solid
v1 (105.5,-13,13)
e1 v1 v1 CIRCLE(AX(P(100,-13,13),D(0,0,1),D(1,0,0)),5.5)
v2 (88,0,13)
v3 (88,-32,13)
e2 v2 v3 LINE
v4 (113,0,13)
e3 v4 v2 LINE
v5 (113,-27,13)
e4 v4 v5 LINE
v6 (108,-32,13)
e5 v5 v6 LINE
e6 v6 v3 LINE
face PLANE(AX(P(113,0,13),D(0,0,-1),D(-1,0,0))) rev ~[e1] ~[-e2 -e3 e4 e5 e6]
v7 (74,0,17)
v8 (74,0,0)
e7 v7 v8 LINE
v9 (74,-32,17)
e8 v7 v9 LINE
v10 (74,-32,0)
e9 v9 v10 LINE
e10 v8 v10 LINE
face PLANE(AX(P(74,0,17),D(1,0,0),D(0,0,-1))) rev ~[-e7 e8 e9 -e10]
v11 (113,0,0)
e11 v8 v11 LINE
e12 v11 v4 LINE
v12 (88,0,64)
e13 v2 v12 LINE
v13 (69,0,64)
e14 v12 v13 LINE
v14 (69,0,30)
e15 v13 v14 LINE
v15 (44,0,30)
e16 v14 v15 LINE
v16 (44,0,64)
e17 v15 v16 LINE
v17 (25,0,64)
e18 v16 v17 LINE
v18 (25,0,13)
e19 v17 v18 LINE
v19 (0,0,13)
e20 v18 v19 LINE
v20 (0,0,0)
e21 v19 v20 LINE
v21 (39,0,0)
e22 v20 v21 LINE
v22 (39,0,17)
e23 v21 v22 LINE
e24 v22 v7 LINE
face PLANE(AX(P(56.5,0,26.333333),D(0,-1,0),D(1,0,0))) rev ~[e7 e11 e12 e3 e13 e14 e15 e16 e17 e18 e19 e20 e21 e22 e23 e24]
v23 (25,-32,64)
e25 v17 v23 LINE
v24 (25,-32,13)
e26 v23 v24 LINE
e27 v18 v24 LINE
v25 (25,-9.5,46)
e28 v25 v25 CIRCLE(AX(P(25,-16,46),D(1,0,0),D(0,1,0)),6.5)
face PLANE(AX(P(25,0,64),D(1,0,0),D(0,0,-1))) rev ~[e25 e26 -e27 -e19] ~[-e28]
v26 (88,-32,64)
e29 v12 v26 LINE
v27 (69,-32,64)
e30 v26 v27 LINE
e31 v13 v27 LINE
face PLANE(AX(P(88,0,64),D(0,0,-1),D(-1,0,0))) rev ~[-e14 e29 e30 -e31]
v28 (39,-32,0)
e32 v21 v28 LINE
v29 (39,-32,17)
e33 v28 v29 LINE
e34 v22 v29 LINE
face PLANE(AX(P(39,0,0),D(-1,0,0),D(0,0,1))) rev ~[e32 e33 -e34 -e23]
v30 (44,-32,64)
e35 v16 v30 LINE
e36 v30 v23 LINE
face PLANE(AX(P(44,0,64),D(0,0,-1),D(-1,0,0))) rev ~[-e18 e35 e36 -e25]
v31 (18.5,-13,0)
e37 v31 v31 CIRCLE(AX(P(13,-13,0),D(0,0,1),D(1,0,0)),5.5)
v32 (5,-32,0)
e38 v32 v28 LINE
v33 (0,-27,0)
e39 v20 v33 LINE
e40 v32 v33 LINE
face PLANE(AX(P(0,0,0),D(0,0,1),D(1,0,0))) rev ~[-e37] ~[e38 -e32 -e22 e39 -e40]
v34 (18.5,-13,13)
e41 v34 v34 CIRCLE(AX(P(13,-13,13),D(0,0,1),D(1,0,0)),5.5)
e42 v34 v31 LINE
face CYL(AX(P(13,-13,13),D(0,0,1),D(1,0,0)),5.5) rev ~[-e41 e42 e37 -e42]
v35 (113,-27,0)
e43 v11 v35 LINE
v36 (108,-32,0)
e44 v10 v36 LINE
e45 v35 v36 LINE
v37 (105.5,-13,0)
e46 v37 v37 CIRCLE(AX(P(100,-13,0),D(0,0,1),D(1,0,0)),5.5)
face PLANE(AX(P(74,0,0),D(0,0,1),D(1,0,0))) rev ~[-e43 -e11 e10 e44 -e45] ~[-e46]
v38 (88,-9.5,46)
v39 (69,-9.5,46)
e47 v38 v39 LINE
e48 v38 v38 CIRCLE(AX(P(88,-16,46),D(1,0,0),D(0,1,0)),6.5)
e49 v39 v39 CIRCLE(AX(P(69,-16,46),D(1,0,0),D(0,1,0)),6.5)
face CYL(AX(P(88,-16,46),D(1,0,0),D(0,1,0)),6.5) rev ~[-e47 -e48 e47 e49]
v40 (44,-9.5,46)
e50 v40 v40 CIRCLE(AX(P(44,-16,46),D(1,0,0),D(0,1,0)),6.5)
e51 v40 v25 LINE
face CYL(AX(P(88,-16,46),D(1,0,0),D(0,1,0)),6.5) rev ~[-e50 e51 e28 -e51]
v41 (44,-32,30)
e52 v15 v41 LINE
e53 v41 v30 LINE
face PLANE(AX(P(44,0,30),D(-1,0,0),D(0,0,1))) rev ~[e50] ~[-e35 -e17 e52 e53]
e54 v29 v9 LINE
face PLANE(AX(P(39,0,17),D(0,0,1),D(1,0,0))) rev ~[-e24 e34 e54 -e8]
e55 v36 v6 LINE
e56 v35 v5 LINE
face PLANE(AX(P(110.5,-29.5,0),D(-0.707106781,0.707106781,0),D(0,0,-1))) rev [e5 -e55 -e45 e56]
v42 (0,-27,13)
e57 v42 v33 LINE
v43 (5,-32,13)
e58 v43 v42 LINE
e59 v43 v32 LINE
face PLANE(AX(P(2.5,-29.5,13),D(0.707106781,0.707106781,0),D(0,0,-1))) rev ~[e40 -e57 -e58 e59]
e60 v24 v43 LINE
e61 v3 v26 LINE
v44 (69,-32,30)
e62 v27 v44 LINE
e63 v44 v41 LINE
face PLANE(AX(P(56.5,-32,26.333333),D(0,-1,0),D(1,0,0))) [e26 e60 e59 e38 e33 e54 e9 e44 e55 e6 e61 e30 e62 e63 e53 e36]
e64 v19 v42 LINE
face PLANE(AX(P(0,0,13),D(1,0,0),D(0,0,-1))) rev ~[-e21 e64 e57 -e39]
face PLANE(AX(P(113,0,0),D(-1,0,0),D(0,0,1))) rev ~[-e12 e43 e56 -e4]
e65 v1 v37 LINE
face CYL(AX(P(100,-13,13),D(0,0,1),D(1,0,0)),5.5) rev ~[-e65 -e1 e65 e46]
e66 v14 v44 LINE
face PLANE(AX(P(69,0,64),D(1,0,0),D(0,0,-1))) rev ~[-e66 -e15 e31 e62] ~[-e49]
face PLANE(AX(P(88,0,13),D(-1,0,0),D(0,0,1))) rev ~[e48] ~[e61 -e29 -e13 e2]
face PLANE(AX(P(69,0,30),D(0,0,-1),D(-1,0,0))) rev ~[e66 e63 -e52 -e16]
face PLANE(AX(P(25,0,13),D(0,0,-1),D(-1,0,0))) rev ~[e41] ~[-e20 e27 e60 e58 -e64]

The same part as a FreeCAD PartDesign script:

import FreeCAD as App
import Part
import Sketcher
from FreeCAD import Vector
Q = App.Units.Quantity


def edges_at(feature, points):
    """Names of the edges that pass closest to the given points."""
    edges = feature.Shape.Edges
    near = lambda p: min(range(len(edges)), key=lambda i: edges[i].distToShape(Part.Vertex(*p))[0])
    return sorted({f"Edge{near(p) + 1}" for p in points})


def add_polygon(sketch, points):
    """Adds a closed chain of lines whose ends are joined by coincident constraints."""
    first, n = sketch.GeometryCount, len(points)
    for a, b in zip(points, points[1:] + points[:1]):
        sketch.addGeometry(Part.LineSegment(App.Vector(*a, 0), App.Vector(*b, 0)), False)
    for i in range(n):
        sketch.addConstraint(Sketcher.Constraint("Coincident", first + i, 2, first + (i + 1) % n, 1))

doc = App.newDocument("Part")
body = doc.addObject("PartDesign::Body", "Body")

# Sketch on XZ plane
sketch1 = body.newObject("Sketcher::SketchObject", "Sketch")
sketch1.AttachmentSupport = (doc.getObject("XZ_Plane"), [""])
sketch1.MapMode = "FlatFace"
add_polygon(sketch1, [(0, 13), (0, 0), (39, 0), (39, 17), (74, 17), (74, 0), (113, 0), (113, 13), (88, 13), (88, 64), (69, 64), (69, 30), (44, 30), (44, 64), (25, 64), (25, 13)])  # lines 0-15
sketch1.addConstraint(Sketcher.Constraint("Vertical", 0))
sketch1.addConstraint(Sketcher.Constraint("Horizontal", 1))
sketch1.addConstraint(Sketcher.Constraint("Vertical", 2))
sketch1.addConstraint(Sketcher.Constraint("Horizontal", 3))
sketch1.addConstraint(Sketcher.Constraint("Vertical", 4))
sketch1.addConstraint(Sketcher.Constraint("Horizontal", 5))
sketch1.addConstraint(Sketcher.Constraint("Vertical", 6))
sketch1.addConstraint(Sketcher.Constraint("Horizontal", 7))
sketch1.addConstraint(Sketcher.Constraint("Vertical", 8))
sketch1.addConstraint(Sketcher.Constraint("Horizontal", 9))
sketch1.addConstraint(Sketcher.Constraint("Vertical", 10))
sketch1.addConstraint(Sketcher.Constraint("Horizontal", 11))
sketch1.addConstraint(Sketcher.Constraint("Vertical", 12))
sketch1.addConstraint(Sketcher.Constraint("Horizontal", 13))
sketch1.addConstraint(Sketcher.Constraint("Vertical", 14))
sketch1.addConstraint(Sketcher.Constraint("Horizontal", 15))
sketch1.addConstraint(Sketcher.Constraint("Coincident", 0, 2, -1, 1))
sketch1.addConstraint(Sketcher.Constraint("PointOnObject", 4, 2, -1))
sketch1.addConstraint(Sketcher.Constraint("Horizontal", 9, 2, 12, 2))
sketch1.addConstraint(Sketcher.Constraint("Horizontal", 7, 2, 14, 2))
sketch1.addConstraint(Sketcher.Constraint("Equal", 1, 5))
sketch1.addConstraint(Sketcher.Constraint("Equal", 7, 11))
sketch1.addConstraint(Sketcher.Constraint("Equal", 9, 13))
sketch1.addConstraint(Sketcher.Constraint("Equal", 11, 15))
sketch1.addConstraint(Sketcher.Constraint("DistanceX", 1, 1, 1, 2, Q("39 mm")))
sketch1.addConstraint(Sketcher.Constraint("DistanceX", 3, 1, 3, 2, Q("35 mm")))
sketch1.addConstraint(Sketcher.Constraint("DistanceX", 7, 2, 7, 1, Q("25 mm")))
sketch1.addConstraint(Sketcher.Constraint("DistanceY", 0, 2, 0, 1, Q("13 mm")))
sketch1.addConstraint(Sketcher.Constraint("DistanceY", 2, 1, 2, 2, Q("17 mm")))
sketch1.addConstraint(Sketcher.Constraint("DistanceY", 8, 1, 8, 2, Q("51 mm")))
sketch1.addConstraint(Sketcher.Constraint("DistanceY", 10, 2, 10, 1, Q("34 mm")))
pad1 = body.newObject("PartDesign::Pad", "Pad")
pad1.Profile = sketch1
pad1.Length = 32
doc.recompute()

chamfer = body.newObject("PartDesign::Chamfer", "Chamfer")
chamfer.Base = (pad1, edges_at(pad1, [(113, -32, 6.5)]))
chamfer.Size = 5
doc.recompute()

chamfer2 = body.newObject("PartDesign::Chamfer", "Chamfer001")
chamfer2.Base = (chamfer, edges_at(chamfer, [(0, -32, 6.5)]))
chamfer2.Size = 5

# Sketch on YZ plane
sketch2 = body.newObject("Sketcher::SketchObject", "Sketch001")
sketch2.AttachmentSupport = (doc.getObject("YZ_Plane"), [""])
sketch2.MapMode = "FlatFace"
sketch2.AttachmentOffset = App.Placement(Vector(0, 0, 88), App.Rotation())
sketch2.addGeometry(Part.Circle(Vector(-16, 46, 0), Vector(0, 0, 1), 6), False)
sketch2.addConstraint(Sketcher.Constraint("Diameter", 0, Q("13 mm")))
sketch2.addConstraint(Sketcher.Constraint("DistanceX", 0, 3, -1, 1, Q("16 mm")))
sketch2.addConstraint(Sketcher.Constraint("DistanceY", -1, 1, 0, 3, Q("46 mm")))
pocket1 = body.newObject("PartDesign::Pocket", "Pocket")
pocket1.Profile = sketch2
pocket1.Type = "ThroughAll"

# Sketch on XY plane
sketch3 = body.newObject("Sketcher::SketchObject", "Sketch002")
sketch3.AttachmentSupport = (doc.getObject("XY_Plane"), [""])
sketch3.MapMode = "FlatFace"
sketch3.AttachmentOffset = App.Placement(Vector(0, 0, 13), App.Rotation())
sketch3.addGeometry(Part.Circle(Vector(13, -13, 0), Vector(0, 0, 1), 6), False)
sketch3.addGeometry(Part.Circle(Vector(100, -13, 0), Vector(0, 0, 1), 6), False)
sketch3.addConstraint(Sketcher.Constraint("Equal", 0, 1))
sketch3.addConstraint(Sketcher.Constraint("Horizontal", 0, 3, 1, 3))
sketch3.addConstraint(Sketcher.Constraint("Diameter", 0, Q("11 mm")))
sketch3.addConstraint(Sketcher.Constraint("DistanceX", -1, 1, 0, 3, Q("13 mm")))
sketch3.addConstraint(Sketcher.Constraint("DistanceY", 0, 3, -1, 1, Q("13 mm")))
sketch3.addConstraint(Sketcher.Constraint("DistanceX", -1, 1, 1, 3, Q("100 mm")))
pocket2 = body.newObject("PartDesign::Pocket", "Pocket001")
pocket2.Profile = sketch3
pocket2.Type = "ThroughAll"

doc.recompute()
